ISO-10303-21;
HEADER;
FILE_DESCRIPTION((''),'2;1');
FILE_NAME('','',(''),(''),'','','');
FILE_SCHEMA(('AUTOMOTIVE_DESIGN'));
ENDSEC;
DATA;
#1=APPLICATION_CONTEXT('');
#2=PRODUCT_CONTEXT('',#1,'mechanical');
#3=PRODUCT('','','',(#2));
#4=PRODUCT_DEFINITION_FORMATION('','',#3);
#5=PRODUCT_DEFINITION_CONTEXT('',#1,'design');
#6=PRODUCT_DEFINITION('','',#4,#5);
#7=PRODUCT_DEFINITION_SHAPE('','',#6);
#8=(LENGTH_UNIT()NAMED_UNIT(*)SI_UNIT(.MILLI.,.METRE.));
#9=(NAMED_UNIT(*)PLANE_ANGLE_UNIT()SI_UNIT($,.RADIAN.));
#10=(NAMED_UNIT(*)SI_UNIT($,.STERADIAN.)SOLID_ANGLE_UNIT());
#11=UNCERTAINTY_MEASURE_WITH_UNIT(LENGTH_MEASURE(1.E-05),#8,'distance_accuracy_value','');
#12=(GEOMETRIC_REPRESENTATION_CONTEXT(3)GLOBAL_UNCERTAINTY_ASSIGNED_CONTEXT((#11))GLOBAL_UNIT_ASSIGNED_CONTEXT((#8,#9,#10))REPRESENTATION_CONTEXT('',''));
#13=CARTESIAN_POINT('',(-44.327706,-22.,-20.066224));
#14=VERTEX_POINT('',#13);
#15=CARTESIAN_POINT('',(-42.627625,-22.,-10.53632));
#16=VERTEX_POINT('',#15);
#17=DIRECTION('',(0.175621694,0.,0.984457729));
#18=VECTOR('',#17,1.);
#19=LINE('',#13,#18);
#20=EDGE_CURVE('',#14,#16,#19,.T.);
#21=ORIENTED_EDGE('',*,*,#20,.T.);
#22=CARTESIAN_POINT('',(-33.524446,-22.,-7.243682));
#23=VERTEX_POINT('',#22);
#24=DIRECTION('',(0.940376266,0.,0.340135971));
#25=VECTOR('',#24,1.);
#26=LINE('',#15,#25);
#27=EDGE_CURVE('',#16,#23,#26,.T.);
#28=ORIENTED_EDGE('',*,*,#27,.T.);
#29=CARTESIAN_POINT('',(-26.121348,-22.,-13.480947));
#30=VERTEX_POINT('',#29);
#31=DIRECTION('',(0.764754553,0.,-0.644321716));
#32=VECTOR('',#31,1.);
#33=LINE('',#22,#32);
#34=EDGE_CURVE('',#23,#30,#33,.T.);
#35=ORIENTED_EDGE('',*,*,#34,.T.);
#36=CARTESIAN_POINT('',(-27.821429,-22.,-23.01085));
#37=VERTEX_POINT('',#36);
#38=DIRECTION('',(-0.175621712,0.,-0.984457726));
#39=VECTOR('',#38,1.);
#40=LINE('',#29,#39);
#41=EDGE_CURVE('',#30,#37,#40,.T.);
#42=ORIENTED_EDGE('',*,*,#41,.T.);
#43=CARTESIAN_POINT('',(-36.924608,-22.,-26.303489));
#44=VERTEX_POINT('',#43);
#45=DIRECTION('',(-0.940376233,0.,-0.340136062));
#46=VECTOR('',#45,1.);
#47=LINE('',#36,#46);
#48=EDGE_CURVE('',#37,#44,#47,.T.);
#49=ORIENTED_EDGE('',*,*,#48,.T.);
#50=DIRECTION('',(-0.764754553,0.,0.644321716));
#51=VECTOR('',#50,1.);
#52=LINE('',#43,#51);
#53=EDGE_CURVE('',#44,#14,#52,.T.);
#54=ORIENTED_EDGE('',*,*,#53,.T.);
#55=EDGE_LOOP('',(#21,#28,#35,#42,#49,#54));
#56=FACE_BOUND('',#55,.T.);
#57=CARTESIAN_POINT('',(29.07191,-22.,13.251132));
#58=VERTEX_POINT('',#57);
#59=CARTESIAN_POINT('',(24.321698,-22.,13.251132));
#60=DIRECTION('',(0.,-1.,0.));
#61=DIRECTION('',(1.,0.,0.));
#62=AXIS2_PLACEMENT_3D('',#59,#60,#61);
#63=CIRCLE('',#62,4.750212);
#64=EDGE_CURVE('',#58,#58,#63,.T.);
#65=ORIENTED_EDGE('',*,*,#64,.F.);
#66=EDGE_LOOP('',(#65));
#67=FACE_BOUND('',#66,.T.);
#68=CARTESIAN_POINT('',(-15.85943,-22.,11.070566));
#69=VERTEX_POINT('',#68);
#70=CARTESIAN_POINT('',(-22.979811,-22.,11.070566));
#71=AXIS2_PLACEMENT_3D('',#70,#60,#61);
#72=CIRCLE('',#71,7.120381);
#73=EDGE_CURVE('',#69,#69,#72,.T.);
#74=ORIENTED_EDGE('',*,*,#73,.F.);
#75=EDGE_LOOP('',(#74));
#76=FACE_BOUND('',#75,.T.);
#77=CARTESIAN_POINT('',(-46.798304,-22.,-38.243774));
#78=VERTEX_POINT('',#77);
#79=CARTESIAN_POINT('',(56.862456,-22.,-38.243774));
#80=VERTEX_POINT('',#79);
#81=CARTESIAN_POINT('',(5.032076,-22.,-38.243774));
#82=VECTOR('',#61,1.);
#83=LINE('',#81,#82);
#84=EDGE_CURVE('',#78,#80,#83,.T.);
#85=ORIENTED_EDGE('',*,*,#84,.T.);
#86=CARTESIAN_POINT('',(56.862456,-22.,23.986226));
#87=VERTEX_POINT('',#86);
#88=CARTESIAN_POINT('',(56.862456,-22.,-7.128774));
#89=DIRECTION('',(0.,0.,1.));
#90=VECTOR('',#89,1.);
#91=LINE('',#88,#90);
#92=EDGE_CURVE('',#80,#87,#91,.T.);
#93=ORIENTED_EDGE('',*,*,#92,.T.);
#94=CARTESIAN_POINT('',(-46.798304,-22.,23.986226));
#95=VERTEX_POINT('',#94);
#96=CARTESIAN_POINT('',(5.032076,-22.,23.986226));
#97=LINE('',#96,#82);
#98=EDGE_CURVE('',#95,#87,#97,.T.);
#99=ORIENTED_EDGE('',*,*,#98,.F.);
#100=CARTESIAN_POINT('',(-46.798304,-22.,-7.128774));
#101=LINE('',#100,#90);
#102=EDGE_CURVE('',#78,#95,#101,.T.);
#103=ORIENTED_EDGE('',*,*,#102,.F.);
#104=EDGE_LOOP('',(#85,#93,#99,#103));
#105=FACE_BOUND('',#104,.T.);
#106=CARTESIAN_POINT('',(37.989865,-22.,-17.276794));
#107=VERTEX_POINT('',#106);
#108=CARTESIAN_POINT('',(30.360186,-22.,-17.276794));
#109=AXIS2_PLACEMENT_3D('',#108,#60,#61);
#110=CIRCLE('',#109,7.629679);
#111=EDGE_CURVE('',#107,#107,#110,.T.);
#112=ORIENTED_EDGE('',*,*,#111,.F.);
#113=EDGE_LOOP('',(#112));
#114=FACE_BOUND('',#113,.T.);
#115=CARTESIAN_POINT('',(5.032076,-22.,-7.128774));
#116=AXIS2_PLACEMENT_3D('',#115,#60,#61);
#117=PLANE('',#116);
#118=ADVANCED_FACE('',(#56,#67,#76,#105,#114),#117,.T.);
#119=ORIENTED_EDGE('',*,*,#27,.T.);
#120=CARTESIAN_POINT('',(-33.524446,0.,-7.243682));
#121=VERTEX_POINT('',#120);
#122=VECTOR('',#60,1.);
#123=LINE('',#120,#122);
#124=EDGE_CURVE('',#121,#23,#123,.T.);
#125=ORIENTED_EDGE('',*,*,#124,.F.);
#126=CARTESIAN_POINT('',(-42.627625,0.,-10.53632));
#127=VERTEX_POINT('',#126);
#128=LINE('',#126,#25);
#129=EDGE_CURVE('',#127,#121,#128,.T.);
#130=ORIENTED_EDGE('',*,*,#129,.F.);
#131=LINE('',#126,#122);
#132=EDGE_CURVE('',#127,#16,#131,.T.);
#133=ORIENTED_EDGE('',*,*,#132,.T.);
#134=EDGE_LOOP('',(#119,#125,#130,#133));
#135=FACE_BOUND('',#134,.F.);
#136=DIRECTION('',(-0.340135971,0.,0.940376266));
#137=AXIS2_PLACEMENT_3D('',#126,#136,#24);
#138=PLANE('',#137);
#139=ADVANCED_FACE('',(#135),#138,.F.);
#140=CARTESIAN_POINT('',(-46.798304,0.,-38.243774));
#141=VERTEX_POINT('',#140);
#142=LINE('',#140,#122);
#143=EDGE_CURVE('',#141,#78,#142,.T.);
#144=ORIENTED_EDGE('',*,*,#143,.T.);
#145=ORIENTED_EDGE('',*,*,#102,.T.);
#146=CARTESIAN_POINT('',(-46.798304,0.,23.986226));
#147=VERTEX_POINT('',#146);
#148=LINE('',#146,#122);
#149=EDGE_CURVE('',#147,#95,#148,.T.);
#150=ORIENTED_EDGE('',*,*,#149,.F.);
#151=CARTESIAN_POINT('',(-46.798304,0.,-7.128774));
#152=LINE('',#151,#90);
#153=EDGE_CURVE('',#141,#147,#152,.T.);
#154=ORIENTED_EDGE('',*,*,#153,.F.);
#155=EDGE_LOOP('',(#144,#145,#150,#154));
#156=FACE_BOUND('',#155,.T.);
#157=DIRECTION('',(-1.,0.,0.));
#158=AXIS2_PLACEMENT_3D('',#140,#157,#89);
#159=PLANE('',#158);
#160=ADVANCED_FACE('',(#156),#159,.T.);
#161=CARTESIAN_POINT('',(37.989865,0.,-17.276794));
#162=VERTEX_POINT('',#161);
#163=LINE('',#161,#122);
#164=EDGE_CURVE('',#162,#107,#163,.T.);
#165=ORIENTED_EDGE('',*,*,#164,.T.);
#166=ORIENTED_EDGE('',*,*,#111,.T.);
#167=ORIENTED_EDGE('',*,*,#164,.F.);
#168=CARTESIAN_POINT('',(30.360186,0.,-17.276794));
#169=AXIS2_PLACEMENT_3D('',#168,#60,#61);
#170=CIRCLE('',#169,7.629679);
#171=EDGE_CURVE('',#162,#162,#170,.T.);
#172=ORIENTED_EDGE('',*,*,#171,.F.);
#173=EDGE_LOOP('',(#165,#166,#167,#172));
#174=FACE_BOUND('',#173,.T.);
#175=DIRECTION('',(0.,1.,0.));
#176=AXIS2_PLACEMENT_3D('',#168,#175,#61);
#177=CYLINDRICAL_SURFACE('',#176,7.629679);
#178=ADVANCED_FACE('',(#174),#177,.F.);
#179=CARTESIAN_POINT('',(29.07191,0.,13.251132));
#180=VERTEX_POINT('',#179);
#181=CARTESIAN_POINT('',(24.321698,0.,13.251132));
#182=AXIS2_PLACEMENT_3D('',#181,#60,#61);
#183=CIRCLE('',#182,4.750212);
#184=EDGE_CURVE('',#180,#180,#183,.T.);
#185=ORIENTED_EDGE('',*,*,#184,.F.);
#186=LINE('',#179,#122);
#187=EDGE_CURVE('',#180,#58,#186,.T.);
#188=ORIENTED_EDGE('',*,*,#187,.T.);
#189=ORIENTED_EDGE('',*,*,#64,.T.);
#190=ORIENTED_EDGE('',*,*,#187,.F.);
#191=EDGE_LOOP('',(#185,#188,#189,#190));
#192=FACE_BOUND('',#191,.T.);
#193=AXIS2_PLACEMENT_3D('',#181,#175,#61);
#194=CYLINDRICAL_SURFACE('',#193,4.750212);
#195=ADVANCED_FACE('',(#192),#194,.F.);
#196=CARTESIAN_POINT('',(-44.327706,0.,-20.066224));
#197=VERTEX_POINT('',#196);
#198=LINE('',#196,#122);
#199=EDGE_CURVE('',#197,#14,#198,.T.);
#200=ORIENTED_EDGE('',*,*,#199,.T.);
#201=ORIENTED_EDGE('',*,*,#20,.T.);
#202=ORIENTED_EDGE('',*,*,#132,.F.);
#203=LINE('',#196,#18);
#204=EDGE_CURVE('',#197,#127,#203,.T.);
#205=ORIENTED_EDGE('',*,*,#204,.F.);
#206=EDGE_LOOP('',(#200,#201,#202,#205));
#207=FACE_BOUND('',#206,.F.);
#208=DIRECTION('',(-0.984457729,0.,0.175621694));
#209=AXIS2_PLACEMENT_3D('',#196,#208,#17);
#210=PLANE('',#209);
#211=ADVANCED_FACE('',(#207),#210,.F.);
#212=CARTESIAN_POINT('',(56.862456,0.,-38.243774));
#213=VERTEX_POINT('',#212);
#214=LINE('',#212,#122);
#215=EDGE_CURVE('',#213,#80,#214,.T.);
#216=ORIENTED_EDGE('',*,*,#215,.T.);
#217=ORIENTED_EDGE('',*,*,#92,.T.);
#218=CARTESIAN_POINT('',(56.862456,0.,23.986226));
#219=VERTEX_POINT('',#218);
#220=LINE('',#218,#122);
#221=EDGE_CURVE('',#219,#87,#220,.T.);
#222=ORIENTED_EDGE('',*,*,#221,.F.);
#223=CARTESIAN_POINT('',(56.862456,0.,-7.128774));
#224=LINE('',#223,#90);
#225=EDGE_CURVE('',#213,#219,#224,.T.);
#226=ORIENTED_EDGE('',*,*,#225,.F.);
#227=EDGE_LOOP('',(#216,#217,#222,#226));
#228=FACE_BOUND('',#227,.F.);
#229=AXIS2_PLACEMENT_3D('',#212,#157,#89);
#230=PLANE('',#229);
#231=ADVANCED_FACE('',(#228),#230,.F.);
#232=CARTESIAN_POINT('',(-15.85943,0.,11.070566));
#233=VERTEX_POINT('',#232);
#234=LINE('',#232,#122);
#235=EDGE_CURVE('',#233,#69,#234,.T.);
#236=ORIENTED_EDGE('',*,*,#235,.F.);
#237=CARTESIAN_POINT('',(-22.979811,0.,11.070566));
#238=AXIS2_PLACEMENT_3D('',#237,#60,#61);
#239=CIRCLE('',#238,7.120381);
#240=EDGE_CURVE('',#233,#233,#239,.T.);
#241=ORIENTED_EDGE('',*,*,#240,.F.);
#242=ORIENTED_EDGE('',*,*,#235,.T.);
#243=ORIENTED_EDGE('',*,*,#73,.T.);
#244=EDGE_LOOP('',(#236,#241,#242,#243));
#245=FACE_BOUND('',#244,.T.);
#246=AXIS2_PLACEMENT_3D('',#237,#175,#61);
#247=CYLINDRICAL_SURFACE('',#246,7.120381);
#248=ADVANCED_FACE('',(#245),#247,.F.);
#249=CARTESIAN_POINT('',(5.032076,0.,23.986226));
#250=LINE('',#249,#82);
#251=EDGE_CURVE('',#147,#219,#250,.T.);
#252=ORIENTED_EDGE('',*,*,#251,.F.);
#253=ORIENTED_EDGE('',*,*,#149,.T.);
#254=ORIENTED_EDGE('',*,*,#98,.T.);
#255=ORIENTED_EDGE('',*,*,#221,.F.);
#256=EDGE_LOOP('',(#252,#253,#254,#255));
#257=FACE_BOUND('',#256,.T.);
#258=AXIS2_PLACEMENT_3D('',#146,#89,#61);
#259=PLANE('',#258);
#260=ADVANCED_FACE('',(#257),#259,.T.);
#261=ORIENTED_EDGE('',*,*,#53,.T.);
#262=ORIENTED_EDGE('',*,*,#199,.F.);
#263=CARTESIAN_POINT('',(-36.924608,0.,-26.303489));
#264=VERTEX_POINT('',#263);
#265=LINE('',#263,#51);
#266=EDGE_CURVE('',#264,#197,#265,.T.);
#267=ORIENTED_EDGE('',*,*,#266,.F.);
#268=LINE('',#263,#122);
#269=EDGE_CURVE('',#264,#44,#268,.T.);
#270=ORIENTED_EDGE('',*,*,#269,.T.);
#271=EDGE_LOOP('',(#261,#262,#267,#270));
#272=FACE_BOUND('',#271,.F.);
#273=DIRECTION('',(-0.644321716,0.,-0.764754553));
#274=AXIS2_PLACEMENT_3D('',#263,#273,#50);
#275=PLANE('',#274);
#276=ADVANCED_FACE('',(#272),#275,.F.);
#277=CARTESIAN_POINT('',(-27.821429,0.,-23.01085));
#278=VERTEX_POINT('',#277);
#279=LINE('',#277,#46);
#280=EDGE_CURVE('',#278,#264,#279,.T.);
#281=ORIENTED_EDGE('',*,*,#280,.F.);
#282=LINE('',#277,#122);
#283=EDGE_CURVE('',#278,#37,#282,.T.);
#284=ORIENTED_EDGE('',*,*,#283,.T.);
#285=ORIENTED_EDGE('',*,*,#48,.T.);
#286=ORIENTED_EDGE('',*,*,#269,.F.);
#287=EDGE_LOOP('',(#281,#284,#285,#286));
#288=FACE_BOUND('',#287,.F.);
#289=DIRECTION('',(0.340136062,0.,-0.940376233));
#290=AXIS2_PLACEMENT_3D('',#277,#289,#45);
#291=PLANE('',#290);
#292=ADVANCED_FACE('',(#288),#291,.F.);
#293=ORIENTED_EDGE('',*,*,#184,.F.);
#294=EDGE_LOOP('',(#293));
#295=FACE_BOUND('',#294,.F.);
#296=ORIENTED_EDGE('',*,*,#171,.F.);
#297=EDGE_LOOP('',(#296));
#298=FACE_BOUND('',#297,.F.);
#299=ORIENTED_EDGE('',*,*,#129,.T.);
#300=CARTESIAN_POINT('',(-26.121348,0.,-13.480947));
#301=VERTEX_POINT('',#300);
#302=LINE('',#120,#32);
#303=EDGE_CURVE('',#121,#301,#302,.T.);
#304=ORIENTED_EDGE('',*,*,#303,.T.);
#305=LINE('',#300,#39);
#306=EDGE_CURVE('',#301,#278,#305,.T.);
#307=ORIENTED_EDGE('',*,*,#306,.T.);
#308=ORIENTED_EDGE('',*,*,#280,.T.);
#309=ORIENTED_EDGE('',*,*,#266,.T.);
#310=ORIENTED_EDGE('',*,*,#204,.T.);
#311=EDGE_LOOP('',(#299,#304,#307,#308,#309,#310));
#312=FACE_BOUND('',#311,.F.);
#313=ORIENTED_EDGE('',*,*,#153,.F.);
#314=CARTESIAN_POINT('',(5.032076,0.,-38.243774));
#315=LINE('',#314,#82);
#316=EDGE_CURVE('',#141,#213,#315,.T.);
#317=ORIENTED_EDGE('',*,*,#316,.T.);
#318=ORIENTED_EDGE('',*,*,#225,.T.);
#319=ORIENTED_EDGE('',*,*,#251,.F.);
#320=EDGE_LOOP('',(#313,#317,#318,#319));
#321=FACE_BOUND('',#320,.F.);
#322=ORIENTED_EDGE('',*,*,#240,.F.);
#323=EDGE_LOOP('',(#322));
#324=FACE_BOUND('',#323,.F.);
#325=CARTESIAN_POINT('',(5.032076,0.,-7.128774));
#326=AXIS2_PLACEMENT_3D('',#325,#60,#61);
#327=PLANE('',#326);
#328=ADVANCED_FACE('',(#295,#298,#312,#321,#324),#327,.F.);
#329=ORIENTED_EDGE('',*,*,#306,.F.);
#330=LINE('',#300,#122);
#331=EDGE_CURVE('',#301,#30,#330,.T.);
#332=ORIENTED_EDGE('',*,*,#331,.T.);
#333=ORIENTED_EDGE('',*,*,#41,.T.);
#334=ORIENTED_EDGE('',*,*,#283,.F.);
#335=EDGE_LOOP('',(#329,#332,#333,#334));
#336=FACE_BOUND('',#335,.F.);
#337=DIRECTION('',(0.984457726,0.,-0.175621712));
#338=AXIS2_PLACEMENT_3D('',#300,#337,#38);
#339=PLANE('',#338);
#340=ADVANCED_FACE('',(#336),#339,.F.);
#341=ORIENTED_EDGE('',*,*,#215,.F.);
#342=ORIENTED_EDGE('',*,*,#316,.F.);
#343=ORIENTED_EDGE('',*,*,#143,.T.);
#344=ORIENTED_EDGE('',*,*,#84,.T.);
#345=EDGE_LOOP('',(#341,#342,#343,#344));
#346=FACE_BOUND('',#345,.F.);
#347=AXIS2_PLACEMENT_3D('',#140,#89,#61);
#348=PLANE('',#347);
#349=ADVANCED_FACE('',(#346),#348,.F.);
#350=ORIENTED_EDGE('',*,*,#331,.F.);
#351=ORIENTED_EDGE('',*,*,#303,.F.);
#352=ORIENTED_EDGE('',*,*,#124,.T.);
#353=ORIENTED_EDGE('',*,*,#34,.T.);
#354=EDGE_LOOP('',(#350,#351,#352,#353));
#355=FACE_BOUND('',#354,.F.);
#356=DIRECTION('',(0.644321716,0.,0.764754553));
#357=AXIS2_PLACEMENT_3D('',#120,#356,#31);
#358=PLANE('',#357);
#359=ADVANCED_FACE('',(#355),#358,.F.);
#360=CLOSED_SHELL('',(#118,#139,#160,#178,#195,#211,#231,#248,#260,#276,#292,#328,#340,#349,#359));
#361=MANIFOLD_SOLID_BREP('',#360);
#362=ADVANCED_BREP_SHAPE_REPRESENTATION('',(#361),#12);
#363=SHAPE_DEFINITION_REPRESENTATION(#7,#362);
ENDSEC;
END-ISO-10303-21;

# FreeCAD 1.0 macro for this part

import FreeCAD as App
import Part
import Sketcher
from FreeCAD import Vector
Q = App.Units.Quantity

doc = App.newDocument("Part")
body = doc.addObject("PartDesign::Body", "Body")

# Sketch on XZ plane
sketch1 = body.newObject("Sketcher::SketchObject", "Sketch")
sketch1.AttachmentSupport = (doc.getObject("XZ_Plane"), [""])
sketch1.MapMode = "FlatFace"
sketch1.addGeometry(Part.LineSegment(Vector(-46.8, 24, 0), Vector(-46.8, -38.2, 0)), False)
sketch1.addGeometry(Part.LineSegment(Vector(-46.8, -38.2, 0), Vector(56.9, -38.2, 0)), False)
sketch1.addGeometry(Part.LineSegment(Vector(56.9, -38.2, 0), Vector(56.9, 24, 0)), False)
sketch1.addGeometry(Part.LineSegment(Vector(56.9, 24, 0), Vector(-46.8, 24, 0)), False)
sketch1.addGeometry(Part.LineSegment(Vector(-33.5, -7.2, 0), Vector(-26.1, -13.5, 0)), False)
sketch1.addGeometry(Part.LineSegment(Vector(-26.1, -13.5, 0), Vector(-27.8, -23, 0)), False)
sketch1.addGeometry(Part.LineSegment(Vector(-27.8, -23, 0), Vector(-36.9, -26.3, 0)), False)
sketch1.addGeometry(Part.LineSegment(Vector(-36.9, -26.3, 0), Vector(-44.3, -20.1, 0)), False)
sketch1.addGeometry(Part.LineSegment(Vector(-44.3, -20.1, 0), Vector(-42.6, -10.5, 0)), False)
sketch1.addGeometry(Part.LineSegment(Vector(-42.6, -10.5, 0), Vector(-33.5, -7.2, 0)), False)
sketch1.addGeometry(Part.Circle(Vector(30.4, -17.3, 0), Vector(0, 0, 1), 7.6), False)
sketch1.addGeometry(Part.Circle(Vector(-23, 11.1, 0), Vector(0, 0, 1), 7.1), False)
sketch1.addGeometry(Part.Circle(Vector(24.3, 13.3, 0), Vector(0, 0, 1), 4.8), False)
sketch1.addConstraint(Sketcher.Constraint("Coincident", 0, 2, 1, 1))
sketch1.addConstraint(Sketcher.Constraint("Coincident", 1, 2, 2, 1))
sketch1.addConstraint(Sketcher.Constraint("Coincident", 2, 2, 3, 1))
sketch1.addConstraint(Sketcher.Constraint("Coincident", 3, 2, 0, 1))
sketch1.addConstraint(Sketcher.Constraint("Coincident", 4, 2, 5, 1))
sketch1.addConstraint(Sketcher.Constraint("Coincident", 5, 2, 6, 1))
sketch1.addConstraint(Sketcher.Constraint("Coincident", 6, 2, 7, 1))
sketch1.addConstraint(Sketcher.Constraint("Coincident", 7, 2, 8, 1))
sketch1.addConstraint(Sketcher.Constraint("Coincident", 8, 2, 9, 1))
sketch1.addConstraint(Sketcher.Constraint("Coincident", 9, 2, 4, 1))
sketch1.addConstraint(Sketcher.Constraint("Vertical", 0))
sketch1.addConstraint(Sketcher.Constraint("Horizontal", 1))
sketch1.addConstraint(Sketcher.Constraint("Vertical", 2))
sketch1.addConstraint(Sketcher.Constraint("Horizontal", 3))
sketch1.addConstraint(Sketcher.Constraint("Parallel", 4, 7))
sketch1.addConstraint(Sketcher.Constraint("Parallel", 5, 8))
sketch1.addConstraint(Sketcher.Constraint("Parallel", 6, 9))
sketch1.addConstraint(Sketcher.Constraint("Equal", 4, 5))
sketch1.addConstraint(Sketcher.Constraint("Equal", 5, 6))
sketch1.addConstraint(Sketcher.Constraint("Equal", 6, 7))
sketch1.addConstraint(Sketcher.Constraint("DistanceY", 0, 2, 0, 1, Q("62.23 mm")))
sketch1.addConstraint(Sketcher.Constraint("Diameter", 10, Q("15.259358 mm")))
sketch1.addConstraint(Sketcher.Constraint("DistanceX", 0, 2, 12, 3, Q("71.120002 mm")))
sketch1.addConstraint(Sketcher.Constraint("Diameter", 11, Q("14.240762 mm")))
sketch1.addConstraint(Sketcher.Constraint("Diameter", 12, Q("9.500424 mm")))
sketch1.addConstraint(Sketcher.Constraint("DistanceX", 1, 1, 1, 2, Q("103.660759 mm")))
sketch1.addConstraint(Sketcher.Constraint("DistanceX", -1, 1, 12, 3, Q("24.321698 mm")))
sketch1.addConstraint(Sketcher.Constraint("Distance", 4, Q("9.680358 mm")))
sketch1.addConstraint(Sketcher.Constraint("DistanceX", 11, 3, -1, 1, Q("22.979811 mm")))
sketch1.addConstraint(Sketcher.Constraint("DistanceX", 4, 2, -1, 1, Q("26.121348 mm")))
sketch1.addConstraint(Sketcher.Constraint("DistanceX", 5, 2, -1, 1, Q("27.821429 mm")))
sketch1.addConstraint(Sketcher.Constraint("DistanceY", 5, 2, -1, 1, Q("23.01085 mm")))
sketch1.addConstraint(Sketcher.Constraint("DistanceY", 6, 2, -1, 1, Q("26.303489 mm")))
sketch1.addConstraint(Sketcher.Constraint("DistanceY", 8, 2, -1, 1, Q("10.53632 mm")))
sketch1.addConstraint(Sketcher.Constraint("DistanceY", 10, 3, 11, 3, Q("28.34736 mm")))
sketch1.addConstraint(Sketcher.Constraint("DistanceY", 0, 2, 11, 3, Q("49.31434 mm")))
sketch1.addConstraint(Sketcher.Constraint("DistanceX", 0, 2, 10, 3, Q("77.15849 mm")))
sketch1.addConstraint(Sketcher.Constraint("DistanceY", 4, 2, 12, 3, Q("26.732079 mm")))
sketch1.addConstraint(Sketcher.Constraint("DistanceY", 0, 2, 7, 2, Q("18.17755 mm")))
pad1 = body.newObject("PartDesign::Pad", "Pad")
pad1.Profile = sketch1
pad1.Length = 22

doc.recompute()
